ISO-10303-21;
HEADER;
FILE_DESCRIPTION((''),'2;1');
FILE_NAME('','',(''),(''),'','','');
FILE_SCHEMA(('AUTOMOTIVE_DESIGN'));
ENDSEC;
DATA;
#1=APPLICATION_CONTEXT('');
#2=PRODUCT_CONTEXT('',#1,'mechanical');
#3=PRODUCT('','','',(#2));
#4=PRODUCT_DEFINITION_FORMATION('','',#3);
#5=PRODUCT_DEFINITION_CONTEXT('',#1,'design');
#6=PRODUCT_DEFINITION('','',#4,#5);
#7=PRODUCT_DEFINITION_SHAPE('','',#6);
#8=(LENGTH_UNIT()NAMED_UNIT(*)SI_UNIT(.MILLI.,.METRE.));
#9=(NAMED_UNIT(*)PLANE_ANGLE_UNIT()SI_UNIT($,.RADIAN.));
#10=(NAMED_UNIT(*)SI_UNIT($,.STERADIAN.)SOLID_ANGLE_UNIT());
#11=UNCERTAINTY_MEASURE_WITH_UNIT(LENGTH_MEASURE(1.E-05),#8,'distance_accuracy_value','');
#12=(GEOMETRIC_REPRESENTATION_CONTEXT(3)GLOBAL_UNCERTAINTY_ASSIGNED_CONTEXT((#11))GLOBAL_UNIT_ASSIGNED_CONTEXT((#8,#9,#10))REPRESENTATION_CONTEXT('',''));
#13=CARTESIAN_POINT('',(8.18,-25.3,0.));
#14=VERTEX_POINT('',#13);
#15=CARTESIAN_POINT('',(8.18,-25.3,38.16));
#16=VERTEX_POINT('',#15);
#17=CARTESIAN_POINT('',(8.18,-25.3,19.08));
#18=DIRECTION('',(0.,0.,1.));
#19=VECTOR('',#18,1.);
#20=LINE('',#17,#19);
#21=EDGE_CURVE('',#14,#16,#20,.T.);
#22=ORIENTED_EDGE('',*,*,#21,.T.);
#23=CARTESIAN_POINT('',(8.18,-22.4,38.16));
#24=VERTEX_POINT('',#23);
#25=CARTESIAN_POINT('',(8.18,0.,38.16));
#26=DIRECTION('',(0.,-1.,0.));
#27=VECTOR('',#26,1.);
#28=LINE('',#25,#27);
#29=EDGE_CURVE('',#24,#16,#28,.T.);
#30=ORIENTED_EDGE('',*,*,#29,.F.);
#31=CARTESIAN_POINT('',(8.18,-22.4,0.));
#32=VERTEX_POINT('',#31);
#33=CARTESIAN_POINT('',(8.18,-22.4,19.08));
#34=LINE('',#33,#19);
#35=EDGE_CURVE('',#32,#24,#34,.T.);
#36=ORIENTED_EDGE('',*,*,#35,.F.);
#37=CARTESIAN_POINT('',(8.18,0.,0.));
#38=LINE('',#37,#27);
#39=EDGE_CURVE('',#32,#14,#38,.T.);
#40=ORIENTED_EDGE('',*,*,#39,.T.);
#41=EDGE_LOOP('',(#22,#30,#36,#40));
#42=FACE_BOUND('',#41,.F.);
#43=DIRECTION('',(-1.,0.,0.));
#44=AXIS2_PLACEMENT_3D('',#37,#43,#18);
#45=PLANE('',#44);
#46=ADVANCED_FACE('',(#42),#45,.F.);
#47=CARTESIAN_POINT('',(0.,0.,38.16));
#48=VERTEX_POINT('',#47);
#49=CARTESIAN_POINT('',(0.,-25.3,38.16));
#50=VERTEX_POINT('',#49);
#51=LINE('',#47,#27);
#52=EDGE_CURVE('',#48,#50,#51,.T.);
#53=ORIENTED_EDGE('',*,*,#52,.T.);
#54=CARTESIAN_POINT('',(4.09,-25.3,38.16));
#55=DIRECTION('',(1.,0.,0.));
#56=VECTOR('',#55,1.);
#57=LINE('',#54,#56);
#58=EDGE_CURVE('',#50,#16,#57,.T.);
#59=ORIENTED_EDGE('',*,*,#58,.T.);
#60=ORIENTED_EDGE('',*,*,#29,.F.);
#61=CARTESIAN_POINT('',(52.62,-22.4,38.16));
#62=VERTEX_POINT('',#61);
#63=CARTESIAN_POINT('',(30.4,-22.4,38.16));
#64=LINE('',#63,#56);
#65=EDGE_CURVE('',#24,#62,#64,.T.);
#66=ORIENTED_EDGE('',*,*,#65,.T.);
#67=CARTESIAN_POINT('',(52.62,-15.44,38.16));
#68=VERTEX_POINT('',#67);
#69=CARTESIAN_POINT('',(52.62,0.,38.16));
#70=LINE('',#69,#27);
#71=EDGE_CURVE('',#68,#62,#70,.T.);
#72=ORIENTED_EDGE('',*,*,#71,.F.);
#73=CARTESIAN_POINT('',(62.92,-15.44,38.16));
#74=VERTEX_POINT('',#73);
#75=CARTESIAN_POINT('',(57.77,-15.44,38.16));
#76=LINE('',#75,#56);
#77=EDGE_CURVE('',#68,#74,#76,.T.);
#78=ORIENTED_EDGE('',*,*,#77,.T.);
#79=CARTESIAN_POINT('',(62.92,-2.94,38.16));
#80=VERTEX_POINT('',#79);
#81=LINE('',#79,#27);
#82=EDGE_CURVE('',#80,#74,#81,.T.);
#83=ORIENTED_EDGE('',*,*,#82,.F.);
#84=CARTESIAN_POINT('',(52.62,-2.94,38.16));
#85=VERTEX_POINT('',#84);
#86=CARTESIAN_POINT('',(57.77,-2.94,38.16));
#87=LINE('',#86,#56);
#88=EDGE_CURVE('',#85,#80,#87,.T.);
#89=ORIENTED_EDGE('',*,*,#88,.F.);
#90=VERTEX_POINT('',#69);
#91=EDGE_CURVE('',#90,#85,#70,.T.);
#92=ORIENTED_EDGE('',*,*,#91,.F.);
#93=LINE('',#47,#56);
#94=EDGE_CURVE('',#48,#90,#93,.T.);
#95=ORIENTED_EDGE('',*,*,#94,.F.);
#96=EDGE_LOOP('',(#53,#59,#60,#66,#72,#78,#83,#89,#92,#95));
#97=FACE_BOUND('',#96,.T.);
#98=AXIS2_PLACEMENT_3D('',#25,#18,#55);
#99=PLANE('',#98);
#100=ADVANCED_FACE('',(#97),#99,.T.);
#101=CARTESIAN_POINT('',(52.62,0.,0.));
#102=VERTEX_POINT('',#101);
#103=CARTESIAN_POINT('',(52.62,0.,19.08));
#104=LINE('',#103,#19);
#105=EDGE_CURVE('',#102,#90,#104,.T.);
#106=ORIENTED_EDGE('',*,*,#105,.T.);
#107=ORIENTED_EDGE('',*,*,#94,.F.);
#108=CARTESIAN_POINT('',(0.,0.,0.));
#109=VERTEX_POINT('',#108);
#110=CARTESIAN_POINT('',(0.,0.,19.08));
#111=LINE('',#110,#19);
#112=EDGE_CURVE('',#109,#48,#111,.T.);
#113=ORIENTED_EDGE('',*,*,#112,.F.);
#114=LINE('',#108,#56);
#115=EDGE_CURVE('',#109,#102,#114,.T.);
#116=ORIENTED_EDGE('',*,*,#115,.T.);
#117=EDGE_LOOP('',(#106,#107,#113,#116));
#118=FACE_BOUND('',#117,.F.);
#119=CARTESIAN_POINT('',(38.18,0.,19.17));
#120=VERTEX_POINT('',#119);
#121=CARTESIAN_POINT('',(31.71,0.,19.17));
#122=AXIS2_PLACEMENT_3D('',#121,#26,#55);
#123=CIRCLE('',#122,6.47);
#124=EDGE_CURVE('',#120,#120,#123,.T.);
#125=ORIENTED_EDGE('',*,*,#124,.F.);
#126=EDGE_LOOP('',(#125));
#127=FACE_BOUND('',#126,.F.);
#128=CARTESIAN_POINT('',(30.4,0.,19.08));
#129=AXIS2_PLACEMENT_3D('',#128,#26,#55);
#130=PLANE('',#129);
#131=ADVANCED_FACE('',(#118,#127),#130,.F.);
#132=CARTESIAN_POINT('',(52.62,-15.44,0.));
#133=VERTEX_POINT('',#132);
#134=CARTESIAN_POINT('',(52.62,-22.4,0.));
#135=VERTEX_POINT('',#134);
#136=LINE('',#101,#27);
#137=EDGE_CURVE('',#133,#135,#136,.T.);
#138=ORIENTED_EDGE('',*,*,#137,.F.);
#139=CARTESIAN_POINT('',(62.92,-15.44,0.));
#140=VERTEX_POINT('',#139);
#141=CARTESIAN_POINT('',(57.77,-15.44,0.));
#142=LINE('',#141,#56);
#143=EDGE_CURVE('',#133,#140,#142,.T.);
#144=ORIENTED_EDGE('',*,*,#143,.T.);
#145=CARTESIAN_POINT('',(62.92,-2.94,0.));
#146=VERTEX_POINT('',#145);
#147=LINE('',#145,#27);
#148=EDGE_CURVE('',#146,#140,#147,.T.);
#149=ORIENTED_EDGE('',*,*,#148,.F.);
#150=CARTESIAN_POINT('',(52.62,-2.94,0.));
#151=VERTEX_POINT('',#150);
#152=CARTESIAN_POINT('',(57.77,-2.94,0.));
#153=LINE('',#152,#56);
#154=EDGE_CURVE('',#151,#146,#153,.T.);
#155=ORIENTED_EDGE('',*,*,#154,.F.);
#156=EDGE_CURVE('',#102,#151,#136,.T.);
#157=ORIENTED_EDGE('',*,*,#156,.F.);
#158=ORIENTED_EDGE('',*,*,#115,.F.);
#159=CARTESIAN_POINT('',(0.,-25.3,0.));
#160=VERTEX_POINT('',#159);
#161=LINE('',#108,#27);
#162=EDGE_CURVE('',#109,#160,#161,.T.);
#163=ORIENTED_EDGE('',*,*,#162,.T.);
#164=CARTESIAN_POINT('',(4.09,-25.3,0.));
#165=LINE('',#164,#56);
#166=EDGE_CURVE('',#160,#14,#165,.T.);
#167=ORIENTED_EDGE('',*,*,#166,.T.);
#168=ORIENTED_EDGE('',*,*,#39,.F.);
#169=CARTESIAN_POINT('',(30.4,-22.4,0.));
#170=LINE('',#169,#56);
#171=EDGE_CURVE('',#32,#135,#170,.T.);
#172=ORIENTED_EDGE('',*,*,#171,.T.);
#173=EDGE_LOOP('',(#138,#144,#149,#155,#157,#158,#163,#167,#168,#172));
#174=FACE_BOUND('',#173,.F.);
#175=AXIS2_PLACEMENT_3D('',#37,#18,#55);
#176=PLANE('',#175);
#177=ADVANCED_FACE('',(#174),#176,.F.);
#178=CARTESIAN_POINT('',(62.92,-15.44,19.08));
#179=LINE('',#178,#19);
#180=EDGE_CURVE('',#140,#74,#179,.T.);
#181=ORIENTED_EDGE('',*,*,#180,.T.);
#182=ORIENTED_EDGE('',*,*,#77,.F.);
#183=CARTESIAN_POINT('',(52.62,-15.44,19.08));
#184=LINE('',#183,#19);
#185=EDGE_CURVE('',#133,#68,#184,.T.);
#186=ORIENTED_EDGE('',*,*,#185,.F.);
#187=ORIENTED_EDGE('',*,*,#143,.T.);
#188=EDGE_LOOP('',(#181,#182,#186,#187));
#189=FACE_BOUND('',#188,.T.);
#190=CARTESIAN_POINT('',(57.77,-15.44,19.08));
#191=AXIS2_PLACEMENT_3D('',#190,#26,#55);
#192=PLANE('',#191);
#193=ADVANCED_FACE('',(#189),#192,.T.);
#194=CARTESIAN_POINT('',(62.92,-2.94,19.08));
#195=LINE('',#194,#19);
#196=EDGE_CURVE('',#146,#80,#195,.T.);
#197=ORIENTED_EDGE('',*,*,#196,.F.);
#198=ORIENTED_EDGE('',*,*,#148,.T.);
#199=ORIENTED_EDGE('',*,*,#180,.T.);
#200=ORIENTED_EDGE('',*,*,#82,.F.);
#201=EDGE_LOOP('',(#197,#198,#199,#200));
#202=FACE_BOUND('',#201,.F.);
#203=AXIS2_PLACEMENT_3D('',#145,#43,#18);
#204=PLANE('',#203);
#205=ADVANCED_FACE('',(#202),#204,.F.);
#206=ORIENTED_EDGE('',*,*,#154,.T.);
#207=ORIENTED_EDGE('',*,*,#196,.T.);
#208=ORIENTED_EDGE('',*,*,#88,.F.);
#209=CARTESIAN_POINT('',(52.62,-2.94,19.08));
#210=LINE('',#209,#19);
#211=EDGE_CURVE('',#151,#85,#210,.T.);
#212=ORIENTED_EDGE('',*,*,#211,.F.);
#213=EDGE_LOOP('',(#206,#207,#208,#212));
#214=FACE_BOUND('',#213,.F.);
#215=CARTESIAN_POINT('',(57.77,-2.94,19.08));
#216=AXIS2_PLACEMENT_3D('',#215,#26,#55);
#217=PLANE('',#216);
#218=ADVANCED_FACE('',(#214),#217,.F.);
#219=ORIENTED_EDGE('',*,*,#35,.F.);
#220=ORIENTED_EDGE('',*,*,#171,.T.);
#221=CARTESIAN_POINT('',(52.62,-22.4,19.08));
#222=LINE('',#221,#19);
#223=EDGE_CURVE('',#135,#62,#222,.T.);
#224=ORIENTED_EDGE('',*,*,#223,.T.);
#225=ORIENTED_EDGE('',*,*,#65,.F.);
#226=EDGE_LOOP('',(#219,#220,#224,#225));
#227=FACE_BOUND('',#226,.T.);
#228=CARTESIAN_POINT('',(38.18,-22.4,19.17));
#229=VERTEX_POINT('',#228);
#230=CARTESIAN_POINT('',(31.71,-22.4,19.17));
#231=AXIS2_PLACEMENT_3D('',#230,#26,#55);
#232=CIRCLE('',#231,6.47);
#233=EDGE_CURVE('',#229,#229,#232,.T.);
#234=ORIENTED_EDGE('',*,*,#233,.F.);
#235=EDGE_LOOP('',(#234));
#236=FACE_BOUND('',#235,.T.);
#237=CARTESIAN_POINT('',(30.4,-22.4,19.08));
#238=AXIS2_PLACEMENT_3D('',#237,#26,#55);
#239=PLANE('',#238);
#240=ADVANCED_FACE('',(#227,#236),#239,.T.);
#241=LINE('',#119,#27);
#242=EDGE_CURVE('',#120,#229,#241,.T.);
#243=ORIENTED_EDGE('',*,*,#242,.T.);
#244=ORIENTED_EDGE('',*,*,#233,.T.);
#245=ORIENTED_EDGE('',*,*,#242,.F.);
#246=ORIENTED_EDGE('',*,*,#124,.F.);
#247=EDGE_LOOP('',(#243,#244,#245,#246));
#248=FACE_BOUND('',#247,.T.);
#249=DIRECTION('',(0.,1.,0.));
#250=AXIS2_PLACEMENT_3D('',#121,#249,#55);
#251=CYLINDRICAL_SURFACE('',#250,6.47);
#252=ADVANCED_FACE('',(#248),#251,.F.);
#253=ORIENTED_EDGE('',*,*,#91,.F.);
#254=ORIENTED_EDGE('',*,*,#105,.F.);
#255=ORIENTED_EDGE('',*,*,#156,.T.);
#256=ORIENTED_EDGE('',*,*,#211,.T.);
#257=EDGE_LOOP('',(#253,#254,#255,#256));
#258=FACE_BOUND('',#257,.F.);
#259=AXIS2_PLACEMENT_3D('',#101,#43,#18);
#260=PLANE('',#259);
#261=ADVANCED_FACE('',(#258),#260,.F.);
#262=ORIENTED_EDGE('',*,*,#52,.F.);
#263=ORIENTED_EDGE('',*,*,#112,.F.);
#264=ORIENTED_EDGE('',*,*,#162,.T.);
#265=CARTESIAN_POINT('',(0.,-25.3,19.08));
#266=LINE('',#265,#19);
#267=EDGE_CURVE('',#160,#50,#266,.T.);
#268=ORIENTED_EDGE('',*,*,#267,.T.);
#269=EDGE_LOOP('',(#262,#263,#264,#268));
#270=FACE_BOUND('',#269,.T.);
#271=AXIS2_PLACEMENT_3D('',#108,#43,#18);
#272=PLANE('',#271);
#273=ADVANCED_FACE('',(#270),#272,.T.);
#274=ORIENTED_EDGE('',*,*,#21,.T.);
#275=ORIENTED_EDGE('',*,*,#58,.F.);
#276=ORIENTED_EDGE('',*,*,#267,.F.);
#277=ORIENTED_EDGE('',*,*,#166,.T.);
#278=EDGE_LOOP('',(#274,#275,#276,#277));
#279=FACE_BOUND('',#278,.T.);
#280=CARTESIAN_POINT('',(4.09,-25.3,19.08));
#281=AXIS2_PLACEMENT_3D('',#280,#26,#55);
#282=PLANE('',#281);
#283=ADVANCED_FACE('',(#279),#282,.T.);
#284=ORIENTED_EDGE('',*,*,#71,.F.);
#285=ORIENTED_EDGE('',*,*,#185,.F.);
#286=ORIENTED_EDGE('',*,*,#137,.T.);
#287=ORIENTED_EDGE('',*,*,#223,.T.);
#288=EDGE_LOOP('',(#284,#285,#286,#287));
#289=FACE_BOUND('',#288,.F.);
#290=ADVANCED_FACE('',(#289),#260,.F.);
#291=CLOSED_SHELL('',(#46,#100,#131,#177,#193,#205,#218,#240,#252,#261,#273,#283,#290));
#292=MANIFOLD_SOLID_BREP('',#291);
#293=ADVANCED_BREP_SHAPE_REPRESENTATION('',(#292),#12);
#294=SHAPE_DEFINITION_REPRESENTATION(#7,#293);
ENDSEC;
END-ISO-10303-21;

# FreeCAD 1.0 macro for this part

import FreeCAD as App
import Part
import Sketcher
Q = App.Units.Quantity


def add_polygon(sketch, points):
    """Adds a closed chain of lines whose ends are joined by coincident constraints."""
    first, n = sketch.GeometryCount, len(points)
    for a, b in zip(points, points[1:] + points[:1]):
        sketch.addGeometry(Part.LineSegment(App.Vector(*a, 0), App.Vector(*b, 0)), False)
    for i in range(n):
        sketch.addConstraint(Sketcher.Constraint("Coincident", first + i, 2, first + (i + 1) % n, 1))

doc = App.newDocument("Part")
body = doc.addObject("PartDesign::Body", "Body")

# Sketch on XZ plane
sketch1 = body.newObject("Sketcher::SketchObject", "Sketch")
sketch1.AttachmentSupport = (doc.getObject("XZ_Plane"), [""])
sketch1.MapMode = "FlatFace"
add_polygon(sketch1, [(0, 38), (0, 0), (8, 0), (8, 38)])  # lines 0-3
sketch1.addConstraint([
    Sketcher.Constraint("Vertical", 0),
    Sketcher.Constraint("Horizontal", 1),
    Sketcher.Constraint("Vertical", 2),
    Sketcher.Constraint("Horizontal", 3),
    Sketcher.Constraint("Coincident", 0, 2, -1, 1),
    Sketcher.Constraint("DistanceX", 1, 1, 1, 2, Q("8.18 mm")),
    Sketcher.Constraint("DistanceY", 0, 2, 0, 1, Q("38.16 mm")),
])
pad1 = body.newObject("PartDesign::Pad", "Pad")
pad1.Profile = sketch1
pad1.Length = 25.3

# Sketch on XZ plane
sketch2 = body.newObject("Sketcher::SketchObject", "Sketch001")
sketch2.AttachmentSupport = (doc.getObject("XZ_Plane"), [""])
sketch2.MapMode = "FlatFace"
add_polygon(sketch2, [(8, 38), (8, 0), (53, 0), (53, 38)])  # lines 0-3
sketch2.addGeometry(Part.Circle(App.Vector(32, 19, 0), App.Vector(0, 0, 1), 6), False)  # 4
sketch2.addConstraint([
    Sketcher.Constraint("Vertical", 0),
    Sketcher.Constraint("Horizontal", 1),
    Sketcher.Constraint("Vertical", 2),
    Sketcher.Constraint("Horizontal", 3),
    Sketcher.Constraint("PointOnObject", 0, 2, -1),
    Sketcher.Constraint("Diameter", 4, Q("12.94 mm")),
    Sketcher.Constraint("DistanceX", 1, 1, 1, 2, Q("44.44 mm")),
    Sketcher.Constraint("DistanceY", 0, 2, 0, 1, Q("38.16 mm")),
    Sketcher.Constraint("DistanceX", -1, 1, 4, 3, Q("31.71 mm")),
    Sketcher.Constraint("DistanceY", -1, 1, 4, 3, Q("19.17 mm")),
    Sketcher.Constraint("DistanceX", -1, 1, 0, 2, Q("8.18 mm")),
])
pad2 = body.newObject("PartDesign::Pad", "Pad001")
pad2.Profile = sketch2
pad2.Length = 22.4

# Sketch on XZ plane
sketch3 = body.newObject("Sketcher::SketchObject", "Sketch002")
sketch3.AttachmentSupport = (doc.getObject("XZ_Plane"), [""])
sketch3.MapMode = "FlatFace"
sketch3.AttachmentOffset = App.Placement(App.Vector(0, 0, 2.94), App.Rotation())
add_polygon(sketch3, [(53, 38), (53, 0), (63, 0), (63, 38)])  # lines 0-3
sketch3.addConstraint([
    Sketcher.Constraint("Vertical", 0),
    Sketcher.Constraint("Horizontal", 1),
    Sketcher.Constraint("Vertical", 2),
    Sketcher.Constraint("Horizontal", 3),
    Sketcher.Constraint("PointOnObject", 0, 2, -1),
    Sketcher.Constraint("DistanceX", 1, 1, 1, 2, Q("10.3 mm")),
    Sketcher.Constraint("DistanceY", 0, 2, 0, 1, Q("38.16 mm")),
    Sketcher.Constraint("DistanceX", -1, 1, 0, 2, Q("52.62 mm")),
])
pad3 = body.newObject("PartDesign::Pad", "Pad002")
pad3.Profile = sketch3
pad3.Length = 12.5

doc.recompute()
